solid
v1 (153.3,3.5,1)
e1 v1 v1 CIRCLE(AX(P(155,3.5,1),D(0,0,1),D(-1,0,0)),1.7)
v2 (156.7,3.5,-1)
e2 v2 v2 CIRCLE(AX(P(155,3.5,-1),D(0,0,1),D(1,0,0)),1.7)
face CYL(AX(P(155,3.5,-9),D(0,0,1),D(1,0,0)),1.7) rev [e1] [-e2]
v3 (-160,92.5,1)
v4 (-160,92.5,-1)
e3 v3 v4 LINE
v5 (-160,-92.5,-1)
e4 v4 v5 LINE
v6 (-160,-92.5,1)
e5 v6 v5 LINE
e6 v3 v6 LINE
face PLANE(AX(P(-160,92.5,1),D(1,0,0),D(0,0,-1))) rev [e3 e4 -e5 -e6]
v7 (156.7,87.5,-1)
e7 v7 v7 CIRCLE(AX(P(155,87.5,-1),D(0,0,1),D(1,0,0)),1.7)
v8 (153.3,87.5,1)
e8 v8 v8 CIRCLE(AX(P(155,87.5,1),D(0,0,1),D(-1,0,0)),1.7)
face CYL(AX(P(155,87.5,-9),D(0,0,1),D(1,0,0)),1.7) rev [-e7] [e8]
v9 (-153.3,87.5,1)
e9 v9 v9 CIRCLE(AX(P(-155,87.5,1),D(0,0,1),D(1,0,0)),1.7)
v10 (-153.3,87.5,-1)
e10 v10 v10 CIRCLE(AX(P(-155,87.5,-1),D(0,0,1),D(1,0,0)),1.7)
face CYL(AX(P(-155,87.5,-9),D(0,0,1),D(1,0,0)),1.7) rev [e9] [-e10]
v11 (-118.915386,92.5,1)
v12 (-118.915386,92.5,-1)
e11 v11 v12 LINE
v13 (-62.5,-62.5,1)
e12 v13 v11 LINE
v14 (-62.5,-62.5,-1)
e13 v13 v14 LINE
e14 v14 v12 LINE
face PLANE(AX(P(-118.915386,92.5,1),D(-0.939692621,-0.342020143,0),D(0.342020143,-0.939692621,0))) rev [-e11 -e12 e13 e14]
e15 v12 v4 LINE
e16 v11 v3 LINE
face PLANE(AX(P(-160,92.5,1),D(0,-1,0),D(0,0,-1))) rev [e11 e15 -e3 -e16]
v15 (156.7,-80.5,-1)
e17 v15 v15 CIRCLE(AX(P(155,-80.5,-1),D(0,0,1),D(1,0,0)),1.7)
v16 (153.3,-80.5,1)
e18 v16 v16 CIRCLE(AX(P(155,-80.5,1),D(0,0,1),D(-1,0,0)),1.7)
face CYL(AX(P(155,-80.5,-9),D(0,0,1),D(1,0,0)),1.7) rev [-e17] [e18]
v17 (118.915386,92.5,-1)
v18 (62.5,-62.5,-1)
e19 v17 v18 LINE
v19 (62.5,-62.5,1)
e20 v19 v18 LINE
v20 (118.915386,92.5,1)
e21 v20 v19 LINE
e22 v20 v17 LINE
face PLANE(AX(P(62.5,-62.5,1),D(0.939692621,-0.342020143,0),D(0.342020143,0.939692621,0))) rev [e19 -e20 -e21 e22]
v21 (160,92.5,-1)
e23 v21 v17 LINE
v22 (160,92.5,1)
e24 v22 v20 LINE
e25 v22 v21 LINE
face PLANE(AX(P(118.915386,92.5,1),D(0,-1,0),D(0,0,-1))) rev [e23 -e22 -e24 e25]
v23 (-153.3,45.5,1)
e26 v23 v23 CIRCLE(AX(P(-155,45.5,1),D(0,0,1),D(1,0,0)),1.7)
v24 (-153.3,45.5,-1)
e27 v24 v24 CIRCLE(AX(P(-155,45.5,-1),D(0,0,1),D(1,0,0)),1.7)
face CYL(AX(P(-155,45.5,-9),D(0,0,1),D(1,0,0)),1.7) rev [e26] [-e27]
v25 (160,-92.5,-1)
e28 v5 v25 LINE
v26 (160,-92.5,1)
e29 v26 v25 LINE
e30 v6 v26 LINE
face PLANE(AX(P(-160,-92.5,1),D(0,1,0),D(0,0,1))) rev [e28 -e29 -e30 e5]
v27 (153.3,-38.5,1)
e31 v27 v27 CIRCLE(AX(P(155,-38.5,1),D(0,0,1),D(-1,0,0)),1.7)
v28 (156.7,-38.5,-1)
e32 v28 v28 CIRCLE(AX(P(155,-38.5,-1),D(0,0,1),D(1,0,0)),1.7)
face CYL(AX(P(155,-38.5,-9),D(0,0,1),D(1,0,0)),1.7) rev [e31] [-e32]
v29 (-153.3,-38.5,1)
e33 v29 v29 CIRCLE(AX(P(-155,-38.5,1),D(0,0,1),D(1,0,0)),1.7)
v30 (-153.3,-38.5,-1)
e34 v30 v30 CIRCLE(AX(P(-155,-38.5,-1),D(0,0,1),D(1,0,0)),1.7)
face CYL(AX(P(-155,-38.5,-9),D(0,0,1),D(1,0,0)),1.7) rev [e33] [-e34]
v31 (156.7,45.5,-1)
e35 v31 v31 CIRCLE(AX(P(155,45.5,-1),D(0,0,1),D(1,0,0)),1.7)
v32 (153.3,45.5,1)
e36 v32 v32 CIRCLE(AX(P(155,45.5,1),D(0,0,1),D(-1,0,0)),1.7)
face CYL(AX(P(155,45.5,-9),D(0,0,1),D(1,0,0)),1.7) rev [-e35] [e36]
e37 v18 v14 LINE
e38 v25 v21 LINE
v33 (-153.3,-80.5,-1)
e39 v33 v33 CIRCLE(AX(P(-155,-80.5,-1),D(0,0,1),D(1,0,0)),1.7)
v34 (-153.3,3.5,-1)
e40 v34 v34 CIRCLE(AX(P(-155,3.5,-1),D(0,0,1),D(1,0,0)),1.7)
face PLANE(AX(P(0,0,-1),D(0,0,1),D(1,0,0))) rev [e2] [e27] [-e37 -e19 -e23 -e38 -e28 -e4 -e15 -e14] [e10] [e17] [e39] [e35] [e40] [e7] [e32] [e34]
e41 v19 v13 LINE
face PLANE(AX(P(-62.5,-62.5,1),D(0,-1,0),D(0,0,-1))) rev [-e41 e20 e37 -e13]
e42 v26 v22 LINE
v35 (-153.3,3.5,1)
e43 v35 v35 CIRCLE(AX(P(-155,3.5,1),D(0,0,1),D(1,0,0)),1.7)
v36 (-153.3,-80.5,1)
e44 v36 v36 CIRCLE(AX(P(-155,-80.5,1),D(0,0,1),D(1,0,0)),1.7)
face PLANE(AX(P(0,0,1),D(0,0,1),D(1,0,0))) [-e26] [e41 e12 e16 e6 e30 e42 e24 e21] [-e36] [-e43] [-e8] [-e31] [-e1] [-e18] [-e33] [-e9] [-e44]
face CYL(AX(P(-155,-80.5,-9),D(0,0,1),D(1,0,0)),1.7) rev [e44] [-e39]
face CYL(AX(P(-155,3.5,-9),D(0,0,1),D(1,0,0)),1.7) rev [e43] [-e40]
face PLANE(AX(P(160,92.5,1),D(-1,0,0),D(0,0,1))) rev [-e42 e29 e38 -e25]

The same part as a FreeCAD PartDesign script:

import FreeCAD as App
import Part
import Sketcher
from FreeCAD import Vector
Q = App.Units.Quantity

doc = App.newDocument("Part")
params = doc.addObject("Spreadsheet::Sheet", "Params")
for row, (alias, value) in enumerate([
    ("sketch1_width", "320 mm"),
    ("sketch1_width2", "125 mm"),
    ("sketch1_height", "185 mm"),
    ("pad1_length", "2 mm"),
    ("sketch2_diameter", "3.4 mm"),
    ("pocket1_length", "10 mm"),
], start=1):
    params.set(f"A{row}", alias)
    params.set(f"B{row}", "=" + value)
    params.setAlias(f"B{row}", alias)

body = doc.addObject("PartDesign::Body", "Body")

# Sketch on XY plane
sketch1 = body.newObject("Sketcher::SketchObject", "Sketch")
sketch1.AttachmentSupport = (doc.getObject("XY_Plane"), [""])
sketch1.MapMode = "FlatFace"
sketch1.addGeometry([
    Part.LineSegment(Vector(-62.5, -62.5, 0), Vector(-118.915386, 92.5, 0)),  # 0
    Part.LineSegment(Vector(-118.915386, 92.5, 0), Vector(-160, 92.5, 0)),  # 1
    Part.LineSegment(Vector(-160, 92.5, 0), Vector(-160, -92.5, 0)),  # 2
    Part.LineSegment(Vector(-160, -92.5, 0), Vector(160, -92.5, 0)),  # 3
    Part.LineSegment(Vector(160, -92.5, 0), Vector(160, 92.5, 0)),  # 4
    Part.LineSegment(Vector(160, 92.5, 0), Vector(118.915386, 92.5, 0)),  # 5
    Part.LineSegment(Vector(118.915386, 92.5, 0), Vector(62.5, -62.5, 0)),  # 6
    Part.LineSegment(Vector(62.5, -62.5, 0), Vector(-62.5, -62.5, 0)),  # 7
], False)
sketch1.addConstraint([
    Sketcher.Constraint("Coincident", 0, 2, 1, 1),
    Sketcher.Constraint("Coincident", 1, 2, 2, 1),
    Sketcher.Constraint("Coincident", 2, 2, 3, 1),
    Sketcher.Constraint("Coincident", 3, 2, 4, 1),
    Sketcher.Constraint("Coincident", 4, 2, 5, 1),
    Sketcher.Constraint("Coincident", 5, 2, 6, 1),
    Sketcher.Constraint("Coincident", 6, 2, 7, 1),
    Sketcher.Constraint("Coincident", 7, 2, 0, 1),
    Sketcher.Constraint("Horizontal", 1),
    Sketcher.Constraint("Vertical", 2),
    Sketcher.Constraint("Horizontal", 3),
    Sketcher.Constraint("Vertical", 4),
    Sketcher.Constraint("Horizontal", 5),
    Sketcher.Constraint("Horizontal", 7),
    Sketcher.Constraint("Symmetric", 1, 2, 3, 2, -1, 1),
    Sketcher.Constraint("Symmetric", 0, 2, 5, 2, -2),
    Sketcher.Constraint("Equal", 0, 6),
    Sketcher.Constraint("DistanceX", 3, 1, 3, 2, Q("320 mm")),
    Sketcher.Constraint("DistanceX", 7, 2, 7, 1, Q("125 mm")),
    Sketcher.Constraint("DistanceY", 2, 2, 2, 1, Q("185 mm")),
    Sketcher.Constraint("Angle", 0, Q("110 deg")),
    Sketcher.Constraint("DistanceY", 3, 2, 6, 2, Q("30 mm")),
])
sketch1.setExpression("Constraints[17]", "Params.sketch1_width")
sketch1.setExpression("Constraints[18]", "Params.sketch1_width2")
sketch1.setExpression("Constraints[19]", "Params.sketch1_height")
pad1 = body.newObject("PartDesign::Pad", "Pad")
pad1.Profile = sketch1
pad1.setExpression("Length", "Params.pad1_length")
pad1.Midplane = True

# Sketch on XY plane
sketch2 = body.newObject("Sketcher::SketchObject", "Sketch001")
sketch2.AttachmentSupport = (doc.getObject("XY_Plane"), [""])
sketch2.MapMode = "FlatFace"
sketch2.AttachmentOffset = App.Placement(Vector(0, 0, 1), App.Rotation())
sketch2.addGeometry([
    Part.Circle(Vector(-155, 87.5, 0), Vector(0, 0, 1), 1.7),  # 0
    Part.Circle(Vector(-155, 45.5, 0), Vector(0, 0, 1), 1.7),  # 1
    Part.Circle(Vector(-155, 3.5, 0), Vector(0, 0, 1), 1.7),  # 2
    Part.Circle(Vector(-155, -38.5, 0), Vector(0, 0, 1), 1.7),  # 3
    Part.Circle(Vector(-155, -80.5, 0), Vector(0, 0, 1), 1.7),  # 4
    Part.Circle(Vector(155, -80.5, 0), Vector(0, 0, 1), 1.7),  # 5
    Part.Circle(Vector(155, -38.5, 0), Vector(0, 0, 1), 1.7),  # 6
    Part.Circle(Vector(155, 3.5, 0), Vector(0, 0, 1), 1.7),  # 7
    Part.Circle(Vector(155, 45.5, 0), Vector(0, 0, 1), 1.7),  # 8
    Part.Circle(Vector(155, 87.5, 0), Vector(0, 0, 1), 1.7),  # 9
], False)
sketch2.addConstraint([
    Sketcher.Constraint("Equal", 0, 1),
    Sketcher.Constraint("Equal", 1, 2),
    Sketcher.Constraint("Equal", 2, 3),
    Sketcher.Constraint("Equal", 3, 4),
    Sketcher.Constraint("Equal", 4, 5),
    Sketcher.Constraint("Equal", 5, 6),
    Sketcher.Constraint("Equal", 6, 7),
    Sketcher.Constraint("Equal", 7, 8),
    Sketcher.Constraint("Equal", 8, 9),
    Sketcher.Constraint("Symmetric", 4, 3, 5, 3, -2),
    Sketcher.Constraint("Symmetric", 3, 3, 6, 3, -2),
    Sketcher.Constraint("Symmetric", 2, 3, 7, 3, -2),
    Sketcher.Constraint("Symmetric", 1, 3, 8, 3, -2),
    Sketcher.Constraint("Symmetric", 0, 3, 9, 3, -2),
    Sketcher.Constraint("Vertical", 0, 3, 1, 3),
    Sketcher.Constraint("Vertical", 1, 3, 2, 3),
    Sketcher.Constraint("Vertical", 2, 3, 3, 3),
    Sketcher.Constraint("Vertical", 3, 3, 4, 3),
    Sketcher.Constraint("Diameter", 0, Q("3.4 mm")),
    Sketcher.Constraint("DistanceX", 0, 3, -1, 1, Q("155 mm")),
    Sketcher.Constraint("DistanceY", 1, 3, 0, 3, Q("42 mm")),
    Sketcher.Constraint("DistanceY", 2, 3, 1, 3, Q("42 mm")),
    Sketcher.Constraint("DistanceY", 3, 3, 2, 3, Q("42 mm")),
    Sketcher.Constraint("DistanceY", 4, 3, 3, 3, Q("42 mm")),
    Sketcher.Constraint("DistanceY", -1, 1, 0, 3, Q("87.5 mm")),
])
sketch2.setExpression("Constraints[18]", "Params.sketch2_diameter")
pocket1 = body.newObject("PartDesign::Pocket", "Pocket")
pocket1.Profile = sketch2
pocket1.setExpression("Length", "Params.pocket1_length")

doc.recompute()
